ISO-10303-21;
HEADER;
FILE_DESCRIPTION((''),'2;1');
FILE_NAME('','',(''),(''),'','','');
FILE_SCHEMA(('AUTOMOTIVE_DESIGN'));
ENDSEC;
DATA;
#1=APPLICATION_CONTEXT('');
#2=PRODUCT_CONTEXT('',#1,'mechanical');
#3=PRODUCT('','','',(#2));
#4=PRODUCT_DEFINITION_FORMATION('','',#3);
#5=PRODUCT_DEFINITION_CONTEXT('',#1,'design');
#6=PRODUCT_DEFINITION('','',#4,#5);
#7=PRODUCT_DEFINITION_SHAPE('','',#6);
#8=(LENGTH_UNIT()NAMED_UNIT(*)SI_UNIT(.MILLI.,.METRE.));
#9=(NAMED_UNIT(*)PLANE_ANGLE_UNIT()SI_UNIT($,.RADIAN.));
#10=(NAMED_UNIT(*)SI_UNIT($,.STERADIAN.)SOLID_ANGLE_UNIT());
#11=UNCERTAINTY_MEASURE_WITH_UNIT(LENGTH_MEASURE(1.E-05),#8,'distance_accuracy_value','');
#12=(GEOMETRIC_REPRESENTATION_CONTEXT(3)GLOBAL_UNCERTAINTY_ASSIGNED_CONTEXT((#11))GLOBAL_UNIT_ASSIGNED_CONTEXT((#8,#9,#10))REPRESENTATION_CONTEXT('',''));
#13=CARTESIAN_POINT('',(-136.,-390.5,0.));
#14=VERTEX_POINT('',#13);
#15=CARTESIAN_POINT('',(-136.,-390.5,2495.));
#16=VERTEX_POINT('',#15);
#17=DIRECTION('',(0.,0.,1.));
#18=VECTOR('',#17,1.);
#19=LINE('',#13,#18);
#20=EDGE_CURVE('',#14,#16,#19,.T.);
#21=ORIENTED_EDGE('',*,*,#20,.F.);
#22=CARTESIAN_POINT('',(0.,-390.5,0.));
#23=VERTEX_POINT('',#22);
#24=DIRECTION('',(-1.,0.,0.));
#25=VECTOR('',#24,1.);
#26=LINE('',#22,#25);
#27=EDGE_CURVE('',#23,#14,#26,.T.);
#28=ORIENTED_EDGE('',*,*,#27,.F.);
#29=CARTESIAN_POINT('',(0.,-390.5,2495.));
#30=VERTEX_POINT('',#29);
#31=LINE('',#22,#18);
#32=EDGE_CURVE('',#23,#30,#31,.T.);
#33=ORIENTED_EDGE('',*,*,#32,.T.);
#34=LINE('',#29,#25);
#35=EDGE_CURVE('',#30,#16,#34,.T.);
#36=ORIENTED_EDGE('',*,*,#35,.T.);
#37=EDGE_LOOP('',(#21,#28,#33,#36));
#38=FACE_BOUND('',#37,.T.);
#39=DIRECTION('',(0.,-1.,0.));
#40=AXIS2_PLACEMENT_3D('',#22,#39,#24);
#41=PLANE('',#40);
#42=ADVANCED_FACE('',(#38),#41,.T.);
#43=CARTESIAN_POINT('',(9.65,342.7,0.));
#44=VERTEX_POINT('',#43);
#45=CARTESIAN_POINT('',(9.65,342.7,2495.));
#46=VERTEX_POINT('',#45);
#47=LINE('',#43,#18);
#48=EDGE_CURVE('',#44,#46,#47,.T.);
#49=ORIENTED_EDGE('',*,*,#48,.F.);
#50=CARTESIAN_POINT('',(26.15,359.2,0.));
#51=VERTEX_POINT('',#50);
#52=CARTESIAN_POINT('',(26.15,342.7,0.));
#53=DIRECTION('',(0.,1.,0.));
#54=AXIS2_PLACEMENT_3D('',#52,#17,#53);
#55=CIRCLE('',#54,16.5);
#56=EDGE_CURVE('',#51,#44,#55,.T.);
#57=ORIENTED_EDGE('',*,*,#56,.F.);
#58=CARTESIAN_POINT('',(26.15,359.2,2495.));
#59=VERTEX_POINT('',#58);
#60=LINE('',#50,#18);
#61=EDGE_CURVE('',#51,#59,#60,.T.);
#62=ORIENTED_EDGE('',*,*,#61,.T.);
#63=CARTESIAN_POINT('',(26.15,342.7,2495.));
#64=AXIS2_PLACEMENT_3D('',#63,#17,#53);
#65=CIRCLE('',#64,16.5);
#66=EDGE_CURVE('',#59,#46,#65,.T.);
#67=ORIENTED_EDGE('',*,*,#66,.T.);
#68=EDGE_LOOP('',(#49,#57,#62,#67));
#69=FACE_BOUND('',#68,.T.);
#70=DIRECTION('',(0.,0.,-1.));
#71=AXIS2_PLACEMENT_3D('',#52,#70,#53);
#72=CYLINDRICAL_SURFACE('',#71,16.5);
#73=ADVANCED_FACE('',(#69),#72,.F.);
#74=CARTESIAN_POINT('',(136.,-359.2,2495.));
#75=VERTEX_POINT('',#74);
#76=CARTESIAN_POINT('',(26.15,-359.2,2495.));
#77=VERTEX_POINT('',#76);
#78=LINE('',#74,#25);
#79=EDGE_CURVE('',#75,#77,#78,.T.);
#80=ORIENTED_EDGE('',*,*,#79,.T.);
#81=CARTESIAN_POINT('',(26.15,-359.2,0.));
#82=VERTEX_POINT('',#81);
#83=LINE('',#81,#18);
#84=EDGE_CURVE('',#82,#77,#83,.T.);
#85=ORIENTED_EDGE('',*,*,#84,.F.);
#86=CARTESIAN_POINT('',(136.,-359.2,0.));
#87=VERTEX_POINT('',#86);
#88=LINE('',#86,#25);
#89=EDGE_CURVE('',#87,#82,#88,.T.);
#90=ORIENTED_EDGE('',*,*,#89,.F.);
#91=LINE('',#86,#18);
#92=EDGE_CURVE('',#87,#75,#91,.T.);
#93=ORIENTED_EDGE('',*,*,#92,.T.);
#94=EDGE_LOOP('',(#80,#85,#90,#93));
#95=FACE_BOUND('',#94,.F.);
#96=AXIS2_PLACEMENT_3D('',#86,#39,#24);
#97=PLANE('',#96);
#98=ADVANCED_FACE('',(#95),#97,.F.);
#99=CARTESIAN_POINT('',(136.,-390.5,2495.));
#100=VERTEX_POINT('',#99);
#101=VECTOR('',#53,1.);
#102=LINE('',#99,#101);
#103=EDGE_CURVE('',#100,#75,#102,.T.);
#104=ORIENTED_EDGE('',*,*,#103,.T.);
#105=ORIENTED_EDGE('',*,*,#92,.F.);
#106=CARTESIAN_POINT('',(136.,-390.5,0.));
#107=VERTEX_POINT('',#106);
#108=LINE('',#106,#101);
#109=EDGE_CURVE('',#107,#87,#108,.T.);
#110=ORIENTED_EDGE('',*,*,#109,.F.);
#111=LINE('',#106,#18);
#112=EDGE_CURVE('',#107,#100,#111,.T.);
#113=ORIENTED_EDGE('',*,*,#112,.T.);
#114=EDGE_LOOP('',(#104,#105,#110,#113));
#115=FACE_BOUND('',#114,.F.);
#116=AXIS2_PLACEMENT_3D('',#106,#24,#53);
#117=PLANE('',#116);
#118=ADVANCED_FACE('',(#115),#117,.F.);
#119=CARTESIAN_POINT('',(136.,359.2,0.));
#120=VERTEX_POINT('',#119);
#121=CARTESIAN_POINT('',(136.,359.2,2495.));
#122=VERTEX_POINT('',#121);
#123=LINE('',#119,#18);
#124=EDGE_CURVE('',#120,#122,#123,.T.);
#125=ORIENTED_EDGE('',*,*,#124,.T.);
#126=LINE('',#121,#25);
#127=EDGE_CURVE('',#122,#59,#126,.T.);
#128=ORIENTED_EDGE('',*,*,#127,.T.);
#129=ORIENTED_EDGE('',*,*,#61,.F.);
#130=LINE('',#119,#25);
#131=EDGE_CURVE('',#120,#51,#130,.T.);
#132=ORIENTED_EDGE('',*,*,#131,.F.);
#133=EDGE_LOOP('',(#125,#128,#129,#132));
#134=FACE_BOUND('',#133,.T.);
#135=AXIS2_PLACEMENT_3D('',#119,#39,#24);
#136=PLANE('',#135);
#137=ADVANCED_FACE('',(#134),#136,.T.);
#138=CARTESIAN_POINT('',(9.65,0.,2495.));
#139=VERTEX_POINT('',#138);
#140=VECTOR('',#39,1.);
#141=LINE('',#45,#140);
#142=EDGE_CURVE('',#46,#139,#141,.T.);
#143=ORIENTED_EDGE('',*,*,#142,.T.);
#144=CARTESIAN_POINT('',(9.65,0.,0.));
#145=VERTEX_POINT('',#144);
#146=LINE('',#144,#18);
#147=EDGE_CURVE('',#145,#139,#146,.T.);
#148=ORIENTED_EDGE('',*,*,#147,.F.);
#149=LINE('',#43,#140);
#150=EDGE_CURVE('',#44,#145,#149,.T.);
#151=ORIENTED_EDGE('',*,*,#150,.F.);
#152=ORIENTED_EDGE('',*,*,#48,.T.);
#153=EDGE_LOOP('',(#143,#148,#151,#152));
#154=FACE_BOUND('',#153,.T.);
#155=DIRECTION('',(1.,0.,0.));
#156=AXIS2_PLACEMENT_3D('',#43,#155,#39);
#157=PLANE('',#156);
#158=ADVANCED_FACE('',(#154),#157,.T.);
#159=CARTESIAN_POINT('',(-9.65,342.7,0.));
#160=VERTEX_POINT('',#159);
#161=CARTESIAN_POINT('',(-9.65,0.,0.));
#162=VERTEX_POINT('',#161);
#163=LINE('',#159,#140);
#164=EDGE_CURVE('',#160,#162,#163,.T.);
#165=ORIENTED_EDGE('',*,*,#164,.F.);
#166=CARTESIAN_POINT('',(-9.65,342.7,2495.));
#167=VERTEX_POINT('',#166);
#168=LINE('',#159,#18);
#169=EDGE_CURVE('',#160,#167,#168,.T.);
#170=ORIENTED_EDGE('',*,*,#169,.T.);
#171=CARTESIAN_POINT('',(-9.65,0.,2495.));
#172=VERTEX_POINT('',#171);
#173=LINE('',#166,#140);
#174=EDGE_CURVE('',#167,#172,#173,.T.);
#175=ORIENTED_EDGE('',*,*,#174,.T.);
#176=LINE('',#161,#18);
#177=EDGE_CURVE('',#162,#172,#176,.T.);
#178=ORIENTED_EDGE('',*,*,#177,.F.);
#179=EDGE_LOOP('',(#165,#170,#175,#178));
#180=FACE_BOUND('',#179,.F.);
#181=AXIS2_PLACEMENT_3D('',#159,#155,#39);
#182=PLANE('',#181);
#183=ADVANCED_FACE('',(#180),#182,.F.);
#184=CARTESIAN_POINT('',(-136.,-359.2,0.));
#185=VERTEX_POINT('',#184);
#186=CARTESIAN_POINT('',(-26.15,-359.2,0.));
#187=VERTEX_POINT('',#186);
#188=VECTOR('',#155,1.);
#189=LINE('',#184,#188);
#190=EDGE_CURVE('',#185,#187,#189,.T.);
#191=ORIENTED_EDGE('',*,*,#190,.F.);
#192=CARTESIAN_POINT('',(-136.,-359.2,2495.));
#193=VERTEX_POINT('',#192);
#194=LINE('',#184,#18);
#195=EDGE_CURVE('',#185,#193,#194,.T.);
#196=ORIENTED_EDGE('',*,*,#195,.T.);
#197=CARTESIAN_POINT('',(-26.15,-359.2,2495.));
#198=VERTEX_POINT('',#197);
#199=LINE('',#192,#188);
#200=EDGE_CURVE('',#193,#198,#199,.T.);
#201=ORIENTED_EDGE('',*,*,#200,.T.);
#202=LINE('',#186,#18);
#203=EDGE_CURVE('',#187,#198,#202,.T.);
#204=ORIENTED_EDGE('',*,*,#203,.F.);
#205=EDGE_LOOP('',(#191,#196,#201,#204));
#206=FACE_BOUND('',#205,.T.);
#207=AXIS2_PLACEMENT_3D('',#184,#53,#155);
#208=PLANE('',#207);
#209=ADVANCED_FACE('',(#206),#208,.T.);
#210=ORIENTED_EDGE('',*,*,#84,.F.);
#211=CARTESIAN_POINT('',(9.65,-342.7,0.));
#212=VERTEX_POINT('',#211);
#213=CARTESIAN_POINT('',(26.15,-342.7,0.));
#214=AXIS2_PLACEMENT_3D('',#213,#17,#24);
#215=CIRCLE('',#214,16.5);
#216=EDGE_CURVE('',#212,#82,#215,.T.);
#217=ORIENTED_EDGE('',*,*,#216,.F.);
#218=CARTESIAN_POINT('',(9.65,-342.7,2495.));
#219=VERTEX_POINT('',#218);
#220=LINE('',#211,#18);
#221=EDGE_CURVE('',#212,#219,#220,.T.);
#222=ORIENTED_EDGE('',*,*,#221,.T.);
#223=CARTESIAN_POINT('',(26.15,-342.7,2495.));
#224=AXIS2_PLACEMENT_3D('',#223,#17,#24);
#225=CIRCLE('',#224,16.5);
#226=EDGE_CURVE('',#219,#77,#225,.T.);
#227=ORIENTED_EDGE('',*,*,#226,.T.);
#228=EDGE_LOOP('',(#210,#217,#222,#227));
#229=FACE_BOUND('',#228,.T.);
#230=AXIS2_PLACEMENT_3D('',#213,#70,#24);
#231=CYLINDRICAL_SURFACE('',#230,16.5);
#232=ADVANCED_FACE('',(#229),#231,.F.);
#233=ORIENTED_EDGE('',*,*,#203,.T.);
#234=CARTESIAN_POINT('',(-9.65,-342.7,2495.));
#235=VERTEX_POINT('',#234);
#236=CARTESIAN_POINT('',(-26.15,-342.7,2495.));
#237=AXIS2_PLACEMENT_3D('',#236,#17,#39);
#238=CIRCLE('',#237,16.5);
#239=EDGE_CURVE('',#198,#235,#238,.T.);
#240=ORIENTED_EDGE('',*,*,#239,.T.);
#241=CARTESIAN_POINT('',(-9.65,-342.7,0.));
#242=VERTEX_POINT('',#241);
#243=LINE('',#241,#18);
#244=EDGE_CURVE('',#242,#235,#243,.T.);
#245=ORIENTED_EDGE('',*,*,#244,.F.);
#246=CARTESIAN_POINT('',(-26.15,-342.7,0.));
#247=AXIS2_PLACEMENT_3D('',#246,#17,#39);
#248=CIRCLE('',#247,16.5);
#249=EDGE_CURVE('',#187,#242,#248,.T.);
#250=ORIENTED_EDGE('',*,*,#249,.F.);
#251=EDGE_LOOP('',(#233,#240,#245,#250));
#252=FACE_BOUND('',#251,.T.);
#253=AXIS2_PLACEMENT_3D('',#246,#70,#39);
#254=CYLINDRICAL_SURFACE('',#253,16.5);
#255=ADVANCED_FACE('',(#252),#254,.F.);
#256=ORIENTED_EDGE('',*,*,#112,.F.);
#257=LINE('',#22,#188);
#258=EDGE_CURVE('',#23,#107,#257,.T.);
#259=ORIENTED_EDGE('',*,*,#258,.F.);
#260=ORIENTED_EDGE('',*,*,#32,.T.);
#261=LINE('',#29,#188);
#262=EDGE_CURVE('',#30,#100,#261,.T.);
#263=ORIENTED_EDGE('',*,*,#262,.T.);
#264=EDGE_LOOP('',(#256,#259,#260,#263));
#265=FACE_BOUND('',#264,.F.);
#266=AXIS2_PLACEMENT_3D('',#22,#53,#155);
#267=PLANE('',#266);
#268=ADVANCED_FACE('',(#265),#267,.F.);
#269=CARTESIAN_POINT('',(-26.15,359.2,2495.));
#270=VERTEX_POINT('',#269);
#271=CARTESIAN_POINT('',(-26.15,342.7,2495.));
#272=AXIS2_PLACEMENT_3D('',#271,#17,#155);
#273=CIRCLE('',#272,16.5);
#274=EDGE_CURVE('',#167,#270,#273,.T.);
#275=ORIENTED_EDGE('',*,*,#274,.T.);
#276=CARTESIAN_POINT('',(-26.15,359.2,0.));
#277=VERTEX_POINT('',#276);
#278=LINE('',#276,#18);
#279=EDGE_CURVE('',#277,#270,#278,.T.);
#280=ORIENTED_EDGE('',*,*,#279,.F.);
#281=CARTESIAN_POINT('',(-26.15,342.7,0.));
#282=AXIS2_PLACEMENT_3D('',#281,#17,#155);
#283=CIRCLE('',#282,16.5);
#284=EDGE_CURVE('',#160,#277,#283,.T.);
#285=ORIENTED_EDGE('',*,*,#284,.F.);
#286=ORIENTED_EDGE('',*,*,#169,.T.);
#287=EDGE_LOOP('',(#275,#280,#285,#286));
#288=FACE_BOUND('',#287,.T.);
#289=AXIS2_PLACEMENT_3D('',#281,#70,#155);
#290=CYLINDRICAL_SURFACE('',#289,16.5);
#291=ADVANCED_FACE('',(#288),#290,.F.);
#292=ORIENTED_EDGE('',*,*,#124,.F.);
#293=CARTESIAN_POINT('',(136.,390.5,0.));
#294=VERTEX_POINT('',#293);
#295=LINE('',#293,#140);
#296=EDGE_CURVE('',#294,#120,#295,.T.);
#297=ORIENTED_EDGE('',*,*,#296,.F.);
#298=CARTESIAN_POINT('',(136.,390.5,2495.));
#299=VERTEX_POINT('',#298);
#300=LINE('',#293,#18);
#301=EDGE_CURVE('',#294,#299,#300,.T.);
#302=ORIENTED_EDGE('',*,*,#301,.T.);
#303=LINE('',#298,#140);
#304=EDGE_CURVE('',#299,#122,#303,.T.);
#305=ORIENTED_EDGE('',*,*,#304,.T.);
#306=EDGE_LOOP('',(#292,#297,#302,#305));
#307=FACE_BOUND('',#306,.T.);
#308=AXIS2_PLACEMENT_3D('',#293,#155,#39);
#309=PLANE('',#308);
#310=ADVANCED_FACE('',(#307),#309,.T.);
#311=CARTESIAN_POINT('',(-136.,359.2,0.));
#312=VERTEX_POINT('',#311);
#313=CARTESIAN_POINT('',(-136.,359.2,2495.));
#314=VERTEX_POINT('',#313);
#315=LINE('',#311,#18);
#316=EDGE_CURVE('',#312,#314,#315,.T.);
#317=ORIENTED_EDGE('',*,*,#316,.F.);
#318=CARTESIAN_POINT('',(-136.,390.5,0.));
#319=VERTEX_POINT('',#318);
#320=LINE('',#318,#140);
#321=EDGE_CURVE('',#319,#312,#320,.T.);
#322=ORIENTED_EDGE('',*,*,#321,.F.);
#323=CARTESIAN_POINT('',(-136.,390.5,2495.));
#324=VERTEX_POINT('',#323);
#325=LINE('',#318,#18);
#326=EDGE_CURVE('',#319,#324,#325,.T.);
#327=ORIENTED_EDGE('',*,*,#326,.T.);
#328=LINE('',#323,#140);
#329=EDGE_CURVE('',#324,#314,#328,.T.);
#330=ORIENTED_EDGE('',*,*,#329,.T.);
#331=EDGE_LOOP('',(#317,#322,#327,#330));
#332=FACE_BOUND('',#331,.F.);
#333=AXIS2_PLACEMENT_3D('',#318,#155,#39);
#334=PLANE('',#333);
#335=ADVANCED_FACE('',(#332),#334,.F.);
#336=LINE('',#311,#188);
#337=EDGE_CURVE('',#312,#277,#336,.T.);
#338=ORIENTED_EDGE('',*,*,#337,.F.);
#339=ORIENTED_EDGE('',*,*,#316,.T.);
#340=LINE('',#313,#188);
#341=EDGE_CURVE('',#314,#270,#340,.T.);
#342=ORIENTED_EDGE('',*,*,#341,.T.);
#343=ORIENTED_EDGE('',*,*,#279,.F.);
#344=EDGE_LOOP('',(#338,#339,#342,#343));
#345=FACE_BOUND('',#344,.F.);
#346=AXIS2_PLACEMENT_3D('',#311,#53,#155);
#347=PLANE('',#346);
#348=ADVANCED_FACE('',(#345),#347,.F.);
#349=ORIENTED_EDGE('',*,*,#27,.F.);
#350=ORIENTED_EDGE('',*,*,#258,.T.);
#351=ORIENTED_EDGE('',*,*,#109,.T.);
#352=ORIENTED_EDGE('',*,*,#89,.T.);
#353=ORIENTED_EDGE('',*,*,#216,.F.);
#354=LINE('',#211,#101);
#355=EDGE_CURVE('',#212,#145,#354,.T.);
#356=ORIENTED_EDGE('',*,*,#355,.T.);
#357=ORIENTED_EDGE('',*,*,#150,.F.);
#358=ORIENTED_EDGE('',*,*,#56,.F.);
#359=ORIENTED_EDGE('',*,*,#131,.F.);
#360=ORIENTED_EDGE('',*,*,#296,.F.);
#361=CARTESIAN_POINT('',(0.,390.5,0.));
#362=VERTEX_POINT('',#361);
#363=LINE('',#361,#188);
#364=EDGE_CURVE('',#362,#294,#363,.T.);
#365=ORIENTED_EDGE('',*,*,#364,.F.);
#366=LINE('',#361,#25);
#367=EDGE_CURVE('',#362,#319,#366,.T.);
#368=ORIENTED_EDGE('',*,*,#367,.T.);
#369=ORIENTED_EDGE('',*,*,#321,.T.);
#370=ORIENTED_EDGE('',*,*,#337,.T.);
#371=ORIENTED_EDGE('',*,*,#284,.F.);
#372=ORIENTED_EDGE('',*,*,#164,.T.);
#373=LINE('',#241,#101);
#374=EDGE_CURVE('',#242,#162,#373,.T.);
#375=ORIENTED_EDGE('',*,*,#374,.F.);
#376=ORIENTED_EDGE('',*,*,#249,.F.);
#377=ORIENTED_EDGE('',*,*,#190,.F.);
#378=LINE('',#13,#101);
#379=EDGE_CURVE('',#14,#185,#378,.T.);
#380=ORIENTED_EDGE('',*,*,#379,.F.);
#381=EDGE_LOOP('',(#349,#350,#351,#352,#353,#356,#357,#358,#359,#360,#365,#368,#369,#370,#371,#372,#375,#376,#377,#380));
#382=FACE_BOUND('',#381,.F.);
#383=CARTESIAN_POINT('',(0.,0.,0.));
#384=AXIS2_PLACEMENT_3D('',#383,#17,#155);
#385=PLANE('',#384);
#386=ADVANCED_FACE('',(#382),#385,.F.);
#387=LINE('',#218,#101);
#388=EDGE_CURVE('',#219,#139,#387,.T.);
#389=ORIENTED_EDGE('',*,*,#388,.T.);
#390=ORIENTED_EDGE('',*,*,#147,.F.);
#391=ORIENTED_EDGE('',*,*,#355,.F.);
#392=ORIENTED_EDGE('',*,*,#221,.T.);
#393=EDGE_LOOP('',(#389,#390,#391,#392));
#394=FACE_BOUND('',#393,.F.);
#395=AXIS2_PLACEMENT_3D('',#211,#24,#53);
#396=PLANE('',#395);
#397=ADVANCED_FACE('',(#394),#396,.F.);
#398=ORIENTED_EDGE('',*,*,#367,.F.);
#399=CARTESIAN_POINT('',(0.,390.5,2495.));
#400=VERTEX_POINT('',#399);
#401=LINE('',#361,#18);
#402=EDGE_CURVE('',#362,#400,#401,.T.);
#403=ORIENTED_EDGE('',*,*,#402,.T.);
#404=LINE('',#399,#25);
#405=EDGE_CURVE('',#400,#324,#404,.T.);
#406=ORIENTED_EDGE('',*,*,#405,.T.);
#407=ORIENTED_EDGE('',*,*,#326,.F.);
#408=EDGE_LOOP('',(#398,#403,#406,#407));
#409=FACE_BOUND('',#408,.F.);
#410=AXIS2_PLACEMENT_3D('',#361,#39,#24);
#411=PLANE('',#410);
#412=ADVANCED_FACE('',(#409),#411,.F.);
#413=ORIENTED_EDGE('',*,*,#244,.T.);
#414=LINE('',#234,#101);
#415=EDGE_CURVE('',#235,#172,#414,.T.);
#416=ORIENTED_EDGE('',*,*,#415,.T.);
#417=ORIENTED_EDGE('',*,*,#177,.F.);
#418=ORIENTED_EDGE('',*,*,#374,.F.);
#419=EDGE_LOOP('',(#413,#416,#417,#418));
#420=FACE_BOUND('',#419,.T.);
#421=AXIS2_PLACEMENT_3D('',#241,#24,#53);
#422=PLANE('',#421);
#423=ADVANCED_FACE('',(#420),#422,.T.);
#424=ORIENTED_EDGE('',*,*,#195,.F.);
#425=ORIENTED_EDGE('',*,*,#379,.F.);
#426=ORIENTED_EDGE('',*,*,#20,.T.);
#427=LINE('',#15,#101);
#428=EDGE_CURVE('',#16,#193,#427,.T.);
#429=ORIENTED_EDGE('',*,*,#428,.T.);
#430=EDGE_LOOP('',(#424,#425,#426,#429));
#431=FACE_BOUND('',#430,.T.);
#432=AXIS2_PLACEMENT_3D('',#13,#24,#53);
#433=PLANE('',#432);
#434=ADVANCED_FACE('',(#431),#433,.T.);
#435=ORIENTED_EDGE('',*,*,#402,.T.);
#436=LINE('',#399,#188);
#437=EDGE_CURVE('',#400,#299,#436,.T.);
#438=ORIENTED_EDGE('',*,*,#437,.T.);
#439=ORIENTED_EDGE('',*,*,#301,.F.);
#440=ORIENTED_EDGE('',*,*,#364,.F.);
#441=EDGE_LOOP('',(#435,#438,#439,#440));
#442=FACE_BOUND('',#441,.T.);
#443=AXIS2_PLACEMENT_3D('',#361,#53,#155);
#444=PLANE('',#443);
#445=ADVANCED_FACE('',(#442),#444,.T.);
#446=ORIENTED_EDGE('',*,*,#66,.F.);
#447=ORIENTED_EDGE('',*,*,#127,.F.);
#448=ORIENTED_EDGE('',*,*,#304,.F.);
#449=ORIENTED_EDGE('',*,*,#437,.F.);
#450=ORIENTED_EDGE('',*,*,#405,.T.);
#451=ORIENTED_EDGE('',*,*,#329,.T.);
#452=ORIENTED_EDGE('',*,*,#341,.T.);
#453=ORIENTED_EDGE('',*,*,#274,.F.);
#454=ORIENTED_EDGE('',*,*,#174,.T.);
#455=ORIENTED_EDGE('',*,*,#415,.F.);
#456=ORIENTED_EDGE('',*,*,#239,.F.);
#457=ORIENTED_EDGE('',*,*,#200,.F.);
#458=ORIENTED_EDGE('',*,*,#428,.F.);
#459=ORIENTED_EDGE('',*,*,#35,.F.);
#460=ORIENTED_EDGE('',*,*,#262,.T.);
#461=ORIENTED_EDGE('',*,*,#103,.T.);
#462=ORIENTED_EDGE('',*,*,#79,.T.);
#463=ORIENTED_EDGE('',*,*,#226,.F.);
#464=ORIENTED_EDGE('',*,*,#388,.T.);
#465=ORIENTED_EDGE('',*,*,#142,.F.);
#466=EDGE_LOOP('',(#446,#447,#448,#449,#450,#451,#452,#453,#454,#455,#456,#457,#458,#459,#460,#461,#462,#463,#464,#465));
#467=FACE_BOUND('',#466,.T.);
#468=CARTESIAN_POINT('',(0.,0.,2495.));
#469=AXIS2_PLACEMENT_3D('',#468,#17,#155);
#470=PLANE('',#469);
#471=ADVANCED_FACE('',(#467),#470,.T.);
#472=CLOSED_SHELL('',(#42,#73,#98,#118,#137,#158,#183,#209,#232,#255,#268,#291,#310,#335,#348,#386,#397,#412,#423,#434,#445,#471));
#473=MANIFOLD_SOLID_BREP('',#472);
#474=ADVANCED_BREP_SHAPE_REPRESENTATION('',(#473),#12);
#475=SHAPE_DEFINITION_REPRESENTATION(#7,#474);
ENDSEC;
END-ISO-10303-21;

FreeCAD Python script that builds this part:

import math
import FreeCAD as App
import Part
import Sketcher

V = App.Vector
Q = App.Units.Quantity

doc = App.newDocument("Part")
params = doc.addObject("Spreadsheet::Sheet", "Params")
for row, (alias, value) in enumerate([
    ("sketch1_radius", "16.5 mm"),
    ("sketch1_height", "31.3 mm"),
    ("pad1_length", "2495 mm"),
], start=1):
    params.set(f"A{row}", alias)
    params.set(f"B{row}", "=" + value)
    params.setAlias(f"B{row}", alias)

body = doc.addObject("PartDesign::Body", "Body")

# Sketch on XY plane
sketch1 = body.newObject("Sketcher::SketchObject", "Sketch")
sketch1.AttachmentSupport = (doc.getObject("XY_Plane"), [""])
sketch1.MapMode = "FlatFace"
sketch1.addGeometry([
    Part.LineSegment(V(-136, -359, 0), V(-136, -390, 0)),  # 0
    Part.LineSegment(V(-136, -390, 0), V(136, -390, 0)),  # 1
    Part.LineSegment(V(136, -390, 0), V(136, -359, 0)),  # 2
    Part.LineSegment(V(136, -359, 0), V(26, -359, 0)),  # 3
    Part.ArcOfCircle(Part.Circle(V(26, -343, 0), V(0, 0, 1), 16), math.radians(180), math.radians(270)),  # 4
    Part.LineSegment(V(10, -343, 0), V(10, 343, 0)),  # 5
    Part.ArcOfCircle(Part.Circle(V(26, 343, 0), V(0, 0, 1), 16), math.radians(90), math.radians(180)),  # 6
    Part.LineSegment(V(26, 359, 0), V(136, 359, 0)),  # 7
    Part.LineSegment(V(136, 359, 0), V(136, 390, 0)),  # 8
    Part.LineSegment(V(136, 390, 0), V(-136, 390, 0)),  # 9
    Part.LineSegment(V(-136, 390, 0), V(-136, 359, 0)),  # 10
    Part.LineSegment(V(-136, 359, 0), V(-26, 359, 0)),  # 11
    Part.ArcOfCircle(Part.Circle(V(-26, 343, 0), V(0, 0, 1), 16), math.radians(0), math.radians(90)),  # 12
    Part.LineSegment(V(-10, 343, 0), V(-10, -343, 0)),  # 13
    Part.ArcOfCircle(Part.Circle(V(-26, -343, 0), V(0, 0, 1), 16), math.radians(-90), math.radians(0)),  # 14
    Part.LineSegment(V(-26, -359, 0), V(-136, -359, 0)),  # 15
], False)
sketch1.addConstraint([
    Sketcher.Constraint("Coincident", 0, 2, 1, 1),
    Sketcher.Constraint("Coincident", 1, 2, 2, 1),
    Sketcher.Constraint("Coincident", 2, 2, 3, 1),
    Sketcher.Constraint("Tangent", 3, 2, 4, 2),
    Sketcher.Constraint("Tangent", 4, 1, 5, 1),
    Sketcher.Constraint("Tangent", 5, 2, 6, 2),
    Sketcher.Constraint("Tangent", 6, 1, 7, 1),
    Sketcher.Constraint("Coincident", 7, 2, 8, 1),
    Sketcher.Constraint("Coincident", 8, 2, 9, 1),
    Sketcher.Constraint("Coincident", 9, 2, 10, 1),
    Sketcher.Constraint("Coincident", 10, 2, 11, 1),
    Sketcher.Constraint("Tangent", 11, 2, 12, 2),
    Sketcher.Constraint("Tangent", 12, 1, 13, 1),
    Sketcher.Constraint("Tangent", 13, 2, 14, 2),
    Sketcher.Constraint("Tangent", 14, 1, 15, 1),
    Sketcher.Constraint("Coincident", 15, 2, 0, 1),
    Sketcher.Constraint("Vertical", 0),
    Sketcher.Constraint("Horizontal", 1),
    Sketcher.Constraint("Vertical", 2),
    Sketcher.Constraint("Horizontal", 3),
    Sketcher.Constraint("Vertical", 5),
    Sketcher.Constraint("Horizontal", 7),
    Sketcher.Constraint("Vertical", 8),
    Sketcher.Constraint("Horizontal", 9),
    Sketcher.Constraint("Vertical", 10),
    Sketcher.Constraint("Horizontal", 11),
    Sketcher.Constraint("Vertical", 13),
    Sketcher.Constraint("Horizontal", 15),
    Sketcher.Constraint("Equal", 4, 6),
    Sketcher.Constraint("Equal", 6, 12),
    Sketcher.Constraint("Equal", 12, 14),
    Sketcher.Constraint("Symmetric", 4, 3, 12, 3, -1, 1),
    Sketcher.Constraint("Symmetric", 0, 2, 8, 2, -1, 1),
    Sketcher.Constraint("Symmetric", 7, 2, 10, 2, -2),
    Sketcher.Constraint("Symmetric", 2, 2, 15, 2, -2),
    Sketcher.Constraint("Radius", 4, Q("16.5 mm")),
    Sketcher.Constraint("DistanceY", 0, 2, 0, 1, Q("31.3 mm")),
    Sketcher.Constraint("DistanceX", 0, 2, -1, 1, Q("136 mm")),
    Sketcher.Constraint("DistanceY", 0, 2, -1, 1, Q("390.5 mm")),
    Sketcher.Constraint("DistanceX", -1, 1, 4, 1, Q("9.65 mm")),
])
sketch1.setExpression("Constraints[35]", "Params.sketch1_radius")
sketch1.setExpression("Constraints[36]", "Params.sketch1_height")
pad1 = body.newObject("PartDesign::Pad", "Pad")
pad1.Profile = sketch1
pad1.setExpression("Length", "Params.pad1_length")

doc.recompute()
